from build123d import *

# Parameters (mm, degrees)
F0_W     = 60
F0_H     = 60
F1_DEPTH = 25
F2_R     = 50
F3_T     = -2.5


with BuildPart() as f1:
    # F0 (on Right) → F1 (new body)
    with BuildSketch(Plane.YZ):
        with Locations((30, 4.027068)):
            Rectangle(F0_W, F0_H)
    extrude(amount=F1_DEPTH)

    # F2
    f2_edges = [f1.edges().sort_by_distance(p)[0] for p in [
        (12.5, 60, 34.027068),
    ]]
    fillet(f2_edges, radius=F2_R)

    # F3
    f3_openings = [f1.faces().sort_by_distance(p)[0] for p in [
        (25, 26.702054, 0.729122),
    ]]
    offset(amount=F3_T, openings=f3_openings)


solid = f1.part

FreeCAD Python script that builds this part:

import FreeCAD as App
import Part
import Sketcher
from FreeCAD import Vector


def edges_at(feature, points):
    """Names of the edges that pass closest to the given points."""
    edges = feature.Shape.Edges
    near = lambda p: min(range(len(edges)), key=lambda i: edges[i].distToShape(Part.Vertex(*p))[0])
    return sorted({f"Edge{near(p) + 1}" for p in points})


def faces_at(feature, points):
    """Names of the faces that lie closest to the given points."""
    faces = feature.Shape.Faces
    near = lambda p: min(range(len(faces)), key=lambda i: faces[i].distToShape(Part.Vertex(*p))[0])
    return sorted({f"Face{near(p) + 1}" for p in points})


def add_polygon(sketch, points):
    """Adds a closed chain of lines whose ends are joined by coincident constraints."""
    first, n = sketch.GeometryCount, len(points)
    for a, b in zip(points, points[1:] + points[:1]):
        sketch.addGeometry(Part.LineSegment(App.Vector(*a, 0), App.Vector(*b, 0)), False)
    for i in range(n):
        sketch.addConstraint(Sketcher.Constraint("Coincident", first + i, 2, first + (i + 1) % n, 1))

doc = App.newDocument("Part")
body = doc.addObject("PartDesign::Body", "Body")

sketch1 = body.newObject("Sketcher::SketchObject", "Sketch")
sketch1.AttachmentSupport = (doc.getObject("YZ_Plane"), [""])
sketch1.MapMode = "FlatFace"
add_polygon(sketch1, [(0, 34.027068), (0, -25.972932), (60, -25.972932), (60, 34.027068)])
sketch1.addConstraint([
    Sketcher.Constraint("Vertical", 0),
    Sketcher.Constraint("Horizontal", 1),
    Sketcher.Constraint("Vertical", 2),
    Sketcher.Constraint("Horizontal", 3),
    Sketcher.Constraint("PointOnObject", 0, 2, -2),
    Sketcher.Constraint("Equal", 3, 0),
    Sketcher.Constraint("DistanceX", 1, 1, 1, 2, 60.0),
    Sketcher.Constraint("DistanceY", 0, 2, -1, 1, 25.972932),
])
pad1 = body.newObject("PartDesign::Pad", "Pad")
pad1.Profile = sketch1
pad1.Length = 25
doc.recompute()

fillet = body.newObject("PartDesign::Fillet", "Fillet")
fillet.Base = (pad1, edges_at(pad1, [(12.5, 60, 34.027)]))
fillet.Radius = 50
doc.recompute()

thickness = body.newObject("PartDesign::Thickness", "Thickness")
thickness.Base = (fillet, faces_at(fillet, [(25, 30, 4.027)]))
thickness.Value = 2.5
thickness.Reversed = True
thickness.Join = "Arc"

doc.recompute()
